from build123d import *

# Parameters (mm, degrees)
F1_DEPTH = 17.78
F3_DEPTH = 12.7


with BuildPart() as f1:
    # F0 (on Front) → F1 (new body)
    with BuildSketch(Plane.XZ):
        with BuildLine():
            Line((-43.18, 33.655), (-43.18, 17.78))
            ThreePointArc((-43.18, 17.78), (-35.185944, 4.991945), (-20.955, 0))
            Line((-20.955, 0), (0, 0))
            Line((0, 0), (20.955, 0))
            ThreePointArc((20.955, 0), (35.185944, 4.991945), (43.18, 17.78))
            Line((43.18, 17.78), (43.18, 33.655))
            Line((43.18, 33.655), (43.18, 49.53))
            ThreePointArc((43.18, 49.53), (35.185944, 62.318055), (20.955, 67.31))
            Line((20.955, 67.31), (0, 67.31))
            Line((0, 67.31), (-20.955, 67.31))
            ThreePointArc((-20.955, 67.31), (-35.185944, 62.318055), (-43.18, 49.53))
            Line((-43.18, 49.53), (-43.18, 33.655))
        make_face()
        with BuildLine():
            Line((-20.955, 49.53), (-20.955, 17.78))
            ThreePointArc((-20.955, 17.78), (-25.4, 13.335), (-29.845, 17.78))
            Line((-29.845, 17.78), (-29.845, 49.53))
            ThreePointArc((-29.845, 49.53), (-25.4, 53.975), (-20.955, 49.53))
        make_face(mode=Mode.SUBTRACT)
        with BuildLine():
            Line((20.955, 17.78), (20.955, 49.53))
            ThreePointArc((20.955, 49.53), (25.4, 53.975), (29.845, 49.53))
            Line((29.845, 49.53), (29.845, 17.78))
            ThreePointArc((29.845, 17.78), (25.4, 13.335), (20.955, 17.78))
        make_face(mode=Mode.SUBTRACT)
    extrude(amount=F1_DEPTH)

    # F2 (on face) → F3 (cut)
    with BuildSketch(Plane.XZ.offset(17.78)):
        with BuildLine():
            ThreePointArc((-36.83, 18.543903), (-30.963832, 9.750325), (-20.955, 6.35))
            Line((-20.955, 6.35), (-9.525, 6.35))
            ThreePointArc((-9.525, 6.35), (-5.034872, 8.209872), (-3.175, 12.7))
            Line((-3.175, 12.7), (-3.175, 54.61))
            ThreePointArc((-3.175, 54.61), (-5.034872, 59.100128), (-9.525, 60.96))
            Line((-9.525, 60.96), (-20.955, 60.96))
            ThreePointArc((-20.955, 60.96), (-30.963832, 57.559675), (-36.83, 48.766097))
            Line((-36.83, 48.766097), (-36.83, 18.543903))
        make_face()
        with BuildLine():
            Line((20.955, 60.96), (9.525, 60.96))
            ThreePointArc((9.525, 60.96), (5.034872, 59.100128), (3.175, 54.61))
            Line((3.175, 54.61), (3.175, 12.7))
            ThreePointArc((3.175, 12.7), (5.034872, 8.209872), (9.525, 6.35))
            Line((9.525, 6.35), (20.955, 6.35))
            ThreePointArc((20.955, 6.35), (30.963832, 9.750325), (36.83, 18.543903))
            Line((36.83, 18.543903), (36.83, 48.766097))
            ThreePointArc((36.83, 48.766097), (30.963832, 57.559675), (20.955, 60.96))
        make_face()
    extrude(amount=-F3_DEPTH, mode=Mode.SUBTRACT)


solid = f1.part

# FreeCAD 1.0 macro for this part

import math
import FreeCAD as App
import Part
import Sketcher
from FreeCAD import Vector
Q = App.Units.Quantity

doc = App.newDocument("Part")
body = doc.addObject("PartDesign::Body", "Body")

# Sketch on XZ plane
sketch1 = body.newObject("Sketcher::SketchObject", "Sketch")
sketch1.AttachmentSupport = (doc.getObject("XZ_Plane"), [""])
sketch1.MapMode = "FlatFace"
sketch1.addGeometry(Part.ArcOfCircle(Part.Circle(Vector(-21, 22.8, 0), Vector(0, 0, 1), 22.8), math.radians(-167), math.radians(-90)), False)
sketch1.addGeometry(Part.LineSegment(Vector(-21, 0, 0), Vector(21, 0, 0)), False)
sketch1.addGeometry(Part.ArcOfCircle(Part.Circle(Vector(21, 22.8, 0), Vector(0, 0, 1), 22.8), math.radians(-90), math.radians(-13)), False)
sketch1.addGeometry(Part.LineSegment(Vector(43.2, 17.8, 0), Vector(43.2, 49.5, 0)), False)
sketch1.addGeometry(Part.ArcOfCircle(Part.Circle(Vector(21, 44.5, 0), Vector(0, 0, 1), 22.8), math.radians(13), math.radians(90)), False)
sketch1.addGeometry(Part.LineSegment(Vector(21, 67.3, 0), Vector(-21, 67.3, 0)), False)
sketch1.addGeometry(Part.ArcOfCircle(Part.Circle(Vector(-21, 44.5, 0), Vector(0, 0, 1), 22.8), math.radians(90), math.radians(167)), False)
sketch1.addGeometry(Part.LineSegment(Vector(-43.2, 49.5, 0), Vector(-43.2, 17.8, 0)), False)
sketch1.addGeometry(Part.ArcOfCircle(Part.Circle(Vector(-25.4, 49.5, 0), Vector(0, 0, 1), 4.4), math.radians(0), math.radians(180)), False)
sketch1.addGeometry(Part.LineSegment(Vector(-21, 49.5, 0), Vector(-21, 17.8, 0)), False)
sketch1.addGeometry(Part.ArcOfCircle(Part.Circle(Vector(-25.4, 17.8, 0), Vector(0, 0, 1), 4.4), math.radians(180), math.radians(360)), False)
sketch1.addGeometry(Part.LineSegment(Vector(-29.8, 17.8, 0), Vector(-29.8, 49.5, 0)), False)
sketch1.addGeometry(Part.ArcOfCircle(Part.Circle(Vector(25.4, 17.8, 0), Vector(0, 0, 1), 4.4), math.radians(180), math.radians(360)), False)
sketch1.addGeometry(Part.LineSegment(Vector(21, 17.8, 0), Vector(21, 49.5, 0)), False)
sketch1.addGeometry(Part.ArcOfCircle(Part.Circle(Vector(25.4, 49.5, 0), Vector(0, 0, 1), 4.4), math.radians(0), math.radians(180)), False)
sketch1.addGeometry(Part.LineSegment(Vector(29.8, 49.5, 0), Vector(29.8, 17.8, 0)), False)
sketch1.addConstraint(Sketcher.Constraint("Tangent", 0, 2, 1, 1))
sketch1.addConstraint(Sketcher.Constraint("Tangent", 1, 2, 2, 1))
sketch1.addConstraint(Sketcher.Constraint("Coincident", 2, 2, 3, 1))
sketch1.addConstraint(Sketcher.Constraint("Coincident", 3, 2, 4, 1))
sketch1.addConstraint(Sketcher.Constraint("Tangent", 4, 2, 5, 1))
sketch1.addConstraint(Sketcher.Constraint("Tangent", 5, 2, 6, 1))
sketch1.addConstraint(Sketcher.Constraint("Coincident", 6, 2, 7, 1))
sketch1.addConstraint(Sketcher.Constraint("Coincident", 7, 2, 0, 1))
sketch1.addConstraint(Sketcher.Constraint("Tangent", 8, 1, 9, 1))
sketch1.addConstraint(Sketcher.Constraint("Tangent", 9, 2, 10, 2))
sketch1.addConstraint(Sketcher.Constraint("Tangent", 10, 1, 11, 1))
sketch1.addConstraint(Sketcher.Constraint("Tangent", 11, 2, 8, 2))
sketch1.addConstraint(Sketcher.Constraint("Tangent", 12, 1, 13, 1))
sketch1.addConstraint(Sketcher.Constraint("Tangent", 13, 2, 14, 2))
sketch1.addConstraint(Sketcher.Constraint("Tangent", 14, 1, 15, 1))
sketch1.addConstraint(Sketcher.Constraint("Tangent", 15, 2, 12, 2))
sketch1.addConstraint(Sketcher.Constraint("Horizontal", 1))
sketch1.addConstraint(Sketcher.Constraint("Vertical", 3))
sketch1.addConstraint(Sketcher.Constraint("Horizontal", 5))
sketch1.addConstraint(Sketcher.Constraint("Vertical", 7))
sketch1.addConstraint(Sketcher.Constraint("Vertical", 9))
sketch1.addConstraint(Sketcher.Constraint("Vertical", 11))
sketch1.addConstraint(Sketcher.Constraint("Vertical", 13))
sketch1.addConstraint(Sketcher.Constraint("Vertical", 15))
sketch1.addConstraint(Sketcher.Constraint("Equal", 0, 2))
sketch1.addConstraint(Sketcher.Constraint("Equal", 2, 4))
sketch1.addConstraint(Sketcher.Constraint("Equal", 4, 6))
sketch1.addConstraint(Sketcher.Constraint("Equal", 10, 12))
sketch1.addConstraint(Sketcher.Constraint("Symmetric", 0, 2, 1, 2, -1, 1))
sketch1.addConstraint(Sketcher.Constraint("Symmetric", 10, 3, 12, 3, -2))
sketch1.addConstraint(Sketcher.Constraint("Symmetric", 3, 2, 6, 2, -2))
sketch1.addConstraint(Sketcher.Constraint("Horizontal", 8, 3, 14, 3))
sketch1.addConstraint(Sketcher.Constraint("Horizontal", 12, 3, 2, 2))
sketch1.addConstraint(Sketcher.Constraint("Horizontal", 14, 3, 3, 2))
sketch1.addConstraint(Sketcher.Constraint("Vertical", 2, 3, 4, 3))
sketch1.addConstraint(Sketcher.Constraint("Vertical", 5, 2, 8, 1))
sketch1.addConstraint(Sketcher.Constraint("DistanceX", 8, 3, -1, 1, Q("1 in")))
sketch1.addConstraint(Sketcher.Constraint("Radius", 8, Q("0.175 in")))
sketch1.addConstraint(Sketcher.Constraint("DistanceY", 3, 1, 3, 2, Q("1.25 in")))
sketch1.addConstraint(Sketcher.Constraint("DistanceY", -1, 1, 10, 3, Q("0.7 in")))
sketch1.addConstraint(Sketcher.Constraint("DistanceX", -1, 1, 2, 2, Q("1.7 in")))
pad1 = body.newObject("PartDesign::Pad", "Pad")
pad1.Profile = sketch1
pad1.Length = Q("0.7 in")

# Sketch on XZ plane
sketch2 = body.newObject("Sketcher::SketchObject", "Sketch001")
sketch2.AttachmentSupport = (doc.getObject("XZ_Plane"), [""])
sketch2.MapMode = "FlatFace"
sketch2.AttachmentOffset = App.Placement(Vector(0, 0, 0.7 * 25.4), App.Rotation())
sketch2.addGeometry(Part.ArcOfCircle(Part.Circle(Vector(-21, 23, 0), Vector(0, 0, 1), 16), math.radians(-165), math.radians(-90)), False)
sketch2.addGeometry(Part.LineSegment(Vector(-21, 6, 0), Vector(-10, 6, 0)), False)
sketch2.addGeometry(Part.ArcOfCircle(Part.Circle(Vector(-10, 13, 0), Vector(0, 0, 1), 6), math.radians(-90), math.radians(0)), False)
sketch2.addGeometry(Part.LineSegment(Vector(-3, 13, 0), Vector(-3, 55, 0)), False)
sketch2.addGeometry(Part.ArcOfCircle(Part.Circle(Vector(-10, 55, 0), Vector(0, 0, 1), 6), math.radians(0), math.radians(90)), False)
sketch2.addGeometry(Part.LineSegment(Vector(-10, 61, 0), Vector(-21, 61, 0)), False)
sketch2.addGeometry(Part.ArcOfCircle(Part.Circle(Vector(-21, 45, 0), Vector(0, 0, 1), 16), math.radians(90), math.radians(165)), False)
sketch2.addGeometry(Part.LineSegment(Vector(-37, 49, 0), Vector(-37, 19, 0)), False)
sketch2.addGeometry(Part.LineSegment(Vector(21, 61, 0), Vector(10, 61, 0)), False)
sketch2.addGeometry(Part.ArcOfCircle(Part.Circle(Vector(10, 55, 0), Vector(0, 0, 1), 6), math.radians(90), math.radians(180)), False)
sketch2.addGeometry(Part.LineSegment(Vector(3, 55, 0), Vector(3, 13, 0)), False)
sketch2.addGeometry(Part.ArcOfCircle(Part.Circle(Vector(10, 13, 0), Vector(0, 0, 1), 6), math.radians(-180), math.radians(-90)), False)
sketch2.addGeometry(Part.LineSegment(Vector(10, 6, 0), Vector(21, 6, 0)), False)
sketch2.addGeometry(Part.ArcOfCircle(Part.Circle(Vector(21, 23, 0), Vector(0, 0, 1), 16), math.radians(-90), math.radians(-15)), False)
sketch2.addGeometry(Part.LineSegment(Vector(37, 19, 0), Vector(37, 49, 0)), False)
sketch2.addGeometry(Part.ArcOfCircle(Part.Circle(Vector(21, 45, 0), Vector(0, 0, 1), 16), math.radians(15), math.radians(90)), False)
sketch2.addConstraint(Sketcher.Constraint("Tangent", 0, 2, 1, 1))
sketch2.addConstraint(Sketcher.Constraint("Tangent", 1, 2, 2, 1))
sketch2.addConstraint(Sketcher.Constraint("Tangent", 2, 2, 3, 1))
sketch2.addConstraint(Sketcher.Constraint("Tangent", 3, 2, 4, 1))
sketch2.addConstraint(Sketcher.Constraint("Tangent", 4, 2, 5, 1))
sketch2.addConstraint(Sketcher.Constraint("Tangent", 5, 2, 6, 1))
sketch2.addConstraint(Sketcher.Constraint("Coincident", 6, 2, 7, 1))
sketch2.addConstraint(Sketcher.Constraint("Coincident", 7, 2, 0, 1))
sketch2.addConstraint(Sketcher.Constraint("Tangent", 8, 2, 9, 1))
sketch2.addConstraint(Sketcher.Constraint("Tangent", 9, 2, 10, 1))
sketch2.addConstraint(Sketcher.Constraint("Tangent", 10, 2, 11, 1))
sketch2.addConstraint(Sketcher.Constraint("Tangent", 11, 2, 12, 1))
sketch2.addConstraint(Sketcher.Constraint("Tangent", 12, 2, 13, 1))
sketch2.addConstraint(Sketcher.Constraint("Coincident", 13, 2, 14, 1))
sketch2.addConstraint(Sketcher.Constraint("Coincident", 14, 2, 15, 1))
sketch2.addConstraint(Sketcher.Constraint("Tangent", 15, 2, 8, 1))
sketch2.addConstraint(Sketcher.Constraint("Horizontal", 1))
sketch2.addConstraint(Sketcher.Constraint("Vertical", 3))
sketch2.addConstraint(Sketcher.Constraint("Horizontal", 5))
sketch2.addConstraint(Sketcher.Constraint("Vertical", 7))
sketch2.addConstraint(Sketcher.Constraint("Horizontal", 8))
sketch2.addConstraint(Sketcher.Constraint("Vertical", 10))
sketch2.addConstraint(Sketcher.Constraint("Horizontal", 12))
sketch2.addConstraint(Sketcher.Constraint("Vertical", 14))
sketch2.addConstraint(Sketcher.Constraint("Equal", 2, 4))
sketch2.addConstraint(Sketcher.Constraint("Equal", 0, 6))
sketch2.addConstraint(Sketcher.Constraint("Equal", 4, 9))
sketch2.addConstraint(Sketcher.Constraint("Equal", 9, 11))
sketch2.addConstraint(Sketcher.Constraint("Equal", 6, 13))
sketch2.addConstraint(Sketcher.Constraint("Equal", 13, 15))
sketch2.addConstraint(Sketcher.Constraint("Symmetric", 4, 3, 9, 3, -2))
sketch2.addConstraint(Sketcher.Constraint("Symmetric", 0, 3, 13, 3, -2))
sketch2.addConstraint(Sketcher.Constraint("Symmetric", 6, 2, 14, 2, -2))
sketch2.addConstraint(Sketcher.Constraint("Vertical", 0, 3, 6, 3))
sketch2.addConstraint(Sketcher.Constraint("Radius", 2, Q("0.25 in")))
sketch2.addConstraint(Sketcher.Constraint("DistanceX", 1, 1, 1, 2, Q("0.45 in")))
sketch2.addConstraint(Sketcher.Constraint("DistanceY", 3, 1, 3, 2, Q("1.65 in")))
sketch2.addConstraint(Sketcher.Constraint("DistanceY", -1, 1, 2, 3, Q("0.5 in")))
sketch2.addConstraint(Sketcher.Constraint("DistanceX", 6, 3, 9, 3, Q("1.2 in")))
sketch2.addConstraint(Sketcher.Constraint("DistanceX", 6, 2, -1, 1, Q("1.45 in")))
sketch2.addConstraint(Sketcher.Constraint("Radius", 0, Q("16.430625 mm")))
pocket1 = body.newObject("PartDesign::Pocket", "Pocket")
pocket1.Profile = sketch2
pocket1.Length = Q("0.5 in")

doc.recompute()
